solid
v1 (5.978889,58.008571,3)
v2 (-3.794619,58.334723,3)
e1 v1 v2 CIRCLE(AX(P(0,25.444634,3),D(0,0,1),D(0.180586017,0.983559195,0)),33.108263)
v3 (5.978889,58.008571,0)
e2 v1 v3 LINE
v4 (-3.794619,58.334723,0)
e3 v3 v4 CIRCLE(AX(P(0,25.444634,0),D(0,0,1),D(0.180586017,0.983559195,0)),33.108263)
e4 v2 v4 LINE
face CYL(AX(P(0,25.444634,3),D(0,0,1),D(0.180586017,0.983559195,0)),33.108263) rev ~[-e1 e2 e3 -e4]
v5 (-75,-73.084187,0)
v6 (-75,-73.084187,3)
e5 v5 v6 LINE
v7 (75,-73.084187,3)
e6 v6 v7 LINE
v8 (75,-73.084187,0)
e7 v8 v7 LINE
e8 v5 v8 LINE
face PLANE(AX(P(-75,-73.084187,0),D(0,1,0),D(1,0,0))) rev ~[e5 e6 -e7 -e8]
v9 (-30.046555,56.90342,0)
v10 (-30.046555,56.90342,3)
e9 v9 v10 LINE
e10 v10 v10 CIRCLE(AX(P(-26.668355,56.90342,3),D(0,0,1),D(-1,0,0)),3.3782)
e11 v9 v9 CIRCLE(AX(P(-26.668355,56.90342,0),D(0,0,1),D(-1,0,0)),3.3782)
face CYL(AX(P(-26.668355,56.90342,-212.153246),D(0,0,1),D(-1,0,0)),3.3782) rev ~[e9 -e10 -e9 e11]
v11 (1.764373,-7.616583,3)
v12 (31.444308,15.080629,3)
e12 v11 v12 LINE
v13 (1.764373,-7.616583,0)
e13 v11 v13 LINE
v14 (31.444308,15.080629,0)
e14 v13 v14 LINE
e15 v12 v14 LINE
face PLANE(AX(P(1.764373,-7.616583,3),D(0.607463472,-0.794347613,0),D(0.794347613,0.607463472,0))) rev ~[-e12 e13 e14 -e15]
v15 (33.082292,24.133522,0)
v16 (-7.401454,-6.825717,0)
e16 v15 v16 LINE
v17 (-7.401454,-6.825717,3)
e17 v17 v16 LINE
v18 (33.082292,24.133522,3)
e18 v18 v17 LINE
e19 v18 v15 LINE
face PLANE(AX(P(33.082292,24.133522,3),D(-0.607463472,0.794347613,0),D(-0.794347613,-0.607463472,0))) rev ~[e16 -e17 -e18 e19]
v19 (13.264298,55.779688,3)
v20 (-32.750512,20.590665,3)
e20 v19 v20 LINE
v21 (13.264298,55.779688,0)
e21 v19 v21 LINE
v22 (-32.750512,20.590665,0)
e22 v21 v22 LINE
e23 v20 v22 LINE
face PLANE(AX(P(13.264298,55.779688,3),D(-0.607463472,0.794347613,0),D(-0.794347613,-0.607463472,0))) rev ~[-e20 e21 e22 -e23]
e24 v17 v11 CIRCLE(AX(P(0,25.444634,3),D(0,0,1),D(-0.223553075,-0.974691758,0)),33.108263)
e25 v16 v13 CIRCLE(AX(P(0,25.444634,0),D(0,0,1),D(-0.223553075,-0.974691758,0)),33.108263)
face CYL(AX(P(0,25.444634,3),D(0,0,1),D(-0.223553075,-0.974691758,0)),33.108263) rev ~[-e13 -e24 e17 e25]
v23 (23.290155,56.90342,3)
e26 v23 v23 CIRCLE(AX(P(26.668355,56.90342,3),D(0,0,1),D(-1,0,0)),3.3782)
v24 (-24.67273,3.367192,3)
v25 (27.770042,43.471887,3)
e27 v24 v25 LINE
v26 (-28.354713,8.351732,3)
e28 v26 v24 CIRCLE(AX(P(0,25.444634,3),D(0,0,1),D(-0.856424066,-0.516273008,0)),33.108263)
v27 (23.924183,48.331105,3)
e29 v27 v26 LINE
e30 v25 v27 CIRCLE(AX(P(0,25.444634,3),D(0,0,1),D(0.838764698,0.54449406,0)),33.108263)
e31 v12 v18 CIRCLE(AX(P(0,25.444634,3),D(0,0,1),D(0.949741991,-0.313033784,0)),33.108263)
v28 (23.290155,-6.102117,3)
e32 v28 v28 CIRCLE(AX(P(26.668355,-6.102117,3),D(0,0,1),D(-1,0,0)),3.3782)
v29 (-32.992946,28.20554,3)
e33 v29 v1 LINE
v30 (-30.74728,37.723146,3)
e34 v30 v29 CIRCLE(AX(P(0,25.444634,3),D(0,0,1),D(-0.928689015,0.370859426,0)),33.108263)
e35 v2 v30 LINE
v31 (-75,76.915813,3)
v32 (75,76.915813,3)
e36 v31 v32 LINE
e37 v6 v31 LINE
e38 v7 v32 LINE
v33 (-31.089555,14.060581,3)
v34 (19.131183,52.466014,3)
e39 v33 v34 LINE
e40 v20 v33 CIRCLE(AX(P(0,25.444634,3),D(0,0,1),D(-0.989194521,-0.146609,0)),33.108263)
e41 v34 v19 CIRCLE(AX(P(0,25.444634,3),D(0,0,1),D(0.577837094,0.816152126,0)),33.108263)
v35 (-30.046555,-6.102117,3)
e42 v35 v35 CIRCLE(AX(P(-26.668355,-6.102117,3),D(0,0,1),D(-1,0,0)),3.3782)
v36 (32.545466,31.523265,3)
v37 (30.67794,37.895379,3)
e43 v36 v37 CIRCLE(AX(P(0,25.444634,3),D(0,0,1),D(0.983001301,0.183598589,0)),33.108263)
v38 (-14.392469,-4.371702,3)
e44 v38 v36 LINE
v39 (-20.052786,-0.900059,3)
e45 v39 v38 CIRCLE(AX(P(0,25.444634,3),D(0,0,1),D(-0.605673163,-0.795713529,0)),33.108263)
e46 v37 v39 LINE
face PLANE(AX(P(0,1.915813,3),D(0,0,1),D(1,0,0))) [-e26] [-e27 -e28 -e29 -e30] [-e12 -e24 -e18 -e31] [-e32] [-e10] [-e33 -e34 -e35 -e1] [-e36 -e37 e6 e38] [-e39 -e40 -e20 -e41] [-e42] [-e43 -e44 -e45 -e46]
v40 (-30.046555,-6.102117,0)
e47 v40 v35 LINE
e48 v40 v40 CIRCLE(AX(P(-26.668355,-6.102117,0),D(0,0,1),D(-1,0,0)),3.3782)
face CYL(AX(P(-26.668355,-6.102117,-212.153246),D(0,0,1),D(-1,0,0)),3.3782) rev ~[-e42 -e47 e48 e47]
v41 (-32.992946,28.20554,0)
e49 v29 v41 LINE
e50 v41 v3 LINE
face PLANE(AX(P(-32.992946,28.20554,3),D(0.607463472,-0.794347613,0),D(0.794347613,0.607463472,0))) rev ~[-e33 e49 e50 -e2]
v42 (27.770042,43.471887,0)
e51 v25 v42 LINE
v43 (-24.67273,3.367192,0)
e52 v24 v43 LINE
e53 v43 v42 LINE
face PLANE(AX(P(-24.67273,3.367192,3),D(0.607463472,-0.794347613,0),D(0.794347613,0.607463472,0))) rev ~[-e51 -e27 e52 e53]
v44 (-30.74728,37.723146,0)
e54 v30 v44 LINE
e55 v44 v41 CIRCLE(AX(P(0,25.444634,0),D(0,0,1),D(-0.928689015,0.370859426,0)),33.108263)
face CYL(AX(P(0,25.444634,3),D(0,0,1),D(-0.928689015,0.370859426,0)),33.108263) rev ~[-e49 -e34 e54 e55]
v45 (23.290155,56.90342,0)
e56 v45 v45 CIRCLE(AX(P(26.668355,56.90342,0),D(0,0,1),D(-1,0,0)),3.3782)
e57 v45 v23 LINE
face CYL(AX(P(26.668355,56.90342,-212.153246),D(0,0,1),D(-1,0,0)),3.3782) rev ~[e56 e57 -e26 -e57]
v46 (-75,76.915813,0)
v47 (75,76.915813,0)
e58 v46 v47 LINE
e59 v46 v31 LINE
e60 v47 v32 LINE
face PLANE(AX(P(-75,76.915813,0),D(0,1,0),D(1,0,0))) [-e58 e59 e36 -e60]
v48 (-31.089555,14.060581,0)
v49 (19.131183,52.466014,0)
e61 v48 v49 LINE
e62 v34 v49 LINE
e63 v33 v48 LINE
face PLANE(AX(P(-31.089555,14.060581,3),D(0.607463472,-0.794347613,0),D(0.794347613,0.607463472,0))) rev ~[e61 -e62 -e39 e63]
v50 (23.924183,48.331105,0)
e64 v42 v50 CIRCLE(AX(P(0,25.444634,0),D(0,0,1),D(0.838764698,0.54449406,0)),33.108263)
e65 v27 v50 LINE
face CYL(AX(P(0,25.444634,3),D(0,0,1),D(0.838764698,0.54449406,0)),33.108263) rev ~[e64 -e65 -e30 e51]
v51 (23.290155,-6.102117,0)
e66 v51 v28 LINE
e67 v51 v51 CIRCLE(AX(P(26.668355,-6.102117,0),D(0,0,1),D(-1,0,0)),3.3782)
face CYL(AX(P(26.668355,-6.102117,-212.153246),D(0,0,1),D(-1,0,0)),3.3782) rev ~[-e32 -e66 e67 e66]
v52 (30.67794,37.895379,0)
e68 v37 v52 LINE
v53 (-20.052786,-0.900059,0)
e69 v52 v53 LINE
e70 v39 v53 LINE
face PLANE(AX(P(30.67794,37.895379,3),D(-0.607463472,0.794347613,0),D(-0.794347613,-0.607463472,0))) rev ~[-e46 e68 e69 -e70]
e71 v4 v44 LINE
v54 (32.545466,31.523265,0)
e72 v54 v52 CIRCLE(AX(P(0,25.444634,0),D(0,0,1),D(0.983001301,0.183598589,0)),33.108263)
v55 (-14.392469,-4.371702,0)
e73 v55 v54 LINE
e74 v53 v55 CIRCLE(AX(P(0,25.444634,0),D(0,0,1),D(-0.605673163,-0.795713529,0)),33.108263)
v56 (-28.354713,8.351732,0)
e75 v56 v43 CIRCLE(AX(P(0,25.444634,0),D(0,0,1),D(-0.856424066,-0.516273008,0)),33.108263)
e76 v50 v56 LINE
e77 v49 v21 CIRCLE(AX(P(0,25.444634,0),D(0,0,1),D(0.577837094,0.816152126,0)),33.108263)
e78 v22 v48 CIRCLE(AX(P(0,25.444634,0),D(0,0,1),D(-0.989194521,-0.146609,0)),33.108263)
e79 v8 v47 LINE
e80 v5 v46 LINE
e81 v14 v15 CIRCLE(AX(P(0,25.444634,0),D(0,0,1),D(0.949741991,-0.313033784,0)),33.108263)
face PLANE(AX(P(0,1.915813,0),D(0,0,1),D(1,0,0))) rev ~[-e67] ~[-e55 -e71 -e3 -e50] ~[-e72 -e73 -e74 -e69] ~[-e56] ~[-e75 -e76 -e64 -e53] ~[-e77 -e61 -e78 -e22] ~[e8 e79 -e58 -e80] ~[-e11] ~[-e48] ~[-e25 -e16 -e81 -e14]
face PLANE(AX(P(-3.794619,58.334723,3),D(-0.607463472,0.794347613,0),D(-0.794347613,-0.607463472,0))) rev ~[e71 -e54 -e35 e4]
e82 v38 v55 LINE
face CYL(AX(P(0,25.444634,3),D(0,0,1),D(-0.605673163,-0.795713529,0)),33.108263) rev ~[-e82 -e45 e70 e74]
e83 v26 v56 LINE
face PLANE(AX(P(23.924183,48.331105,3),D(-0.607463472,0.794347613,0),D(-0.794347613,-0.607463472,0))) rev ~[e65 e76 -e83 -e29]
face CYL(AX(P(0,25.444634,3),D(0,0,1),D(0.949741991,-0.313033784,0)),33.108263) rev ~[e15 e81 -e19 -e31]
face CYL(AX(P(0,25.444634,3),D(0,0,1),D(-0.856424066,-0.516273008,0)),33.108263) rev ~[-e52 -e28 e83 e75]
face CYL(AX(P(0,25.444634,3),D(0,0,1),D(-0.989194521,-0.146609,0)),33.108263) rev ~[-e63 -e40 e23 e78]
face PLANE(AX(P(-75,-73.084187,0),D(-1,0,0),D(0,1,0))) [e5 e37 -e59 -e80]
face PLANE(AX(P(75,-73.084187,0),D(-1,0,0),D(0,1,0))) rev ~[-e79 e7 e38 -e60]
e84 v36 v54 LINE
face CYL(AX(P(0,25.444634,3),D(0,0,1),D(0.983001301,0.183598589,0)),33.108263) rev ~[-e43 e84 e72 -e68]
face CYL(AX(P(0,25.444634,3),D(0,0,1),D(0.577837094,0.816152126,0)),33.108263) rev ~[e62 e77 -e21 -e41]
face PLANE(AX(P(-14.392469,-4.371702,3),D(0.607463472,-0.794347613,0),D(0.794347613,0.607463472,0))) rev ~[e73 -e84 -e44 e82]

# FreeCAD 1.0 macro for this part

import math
import FreeCAD as App
import Part
import Sketcher

V = App.Vector
Q = App.Units.Quantity


def add_polygon(sketch, points):
    """Adds a closed chain of lines whose ends are joined by coincident constraints."""
    first, n = sketch.GeometryCount, len(points)
    for a, b in zip(points, points[1:] + points[:1]):
        sketch.addGeometry(Part.LineSegment(App.Vector(*a, 0), App.Vector(*b, 0)), False)
    for i in range(n):
        sketch.addConstraint(Sketcher.Constraint("Coincident", first + i, 2, first + (i + 1) % n, 1))

doc = App.newDocument("Part")
params = doc.addObject("Spreadsheet::Sheet", "Params")
for row, (alias, value) in enumerate([
    ("sketch1_width", "150 mm"),
    ("pad1_length", "3 mm"),
    ("hole_diameter", "6.7564 mm"),
    ("pocket1_length", "25 mm"),
], start=1):
    params.set(f"A{row}", alias)
    params.set(f"B{row}", "=" + value)
    params.setAlias(f"B{row}", alias)

body = doc.addObject("PartDesign::Body", "Body")

# Sketch on XY plane
sketch1 = body.newObject("Sketcher::SketchObject", "Sketch")
sketch1.AttachmentSupport = (doc.getObject("XY_Plane"), [""])
sketch1.MapMode = "FlatFace"
add_polygon(sketch1, [(-75, 77), (-75, -73), (75, -73), (75, 77)])  # lines 0-3
sketch1.addConstraint(Sketcher.Constraint("Vertical", 0))
sketch1.addConstraint(Sketcher.Constraint("Horizontal", 1))
sketch1.addConstraint(Sketcher.Constraint("Vertical", 2))
sketch1.addConstraint(Sketcher.Constraint("Horizontal", 3))
sketch1.addConstraint(Sketcher.Constraint("Equal", 3, 0))
sketch1.addConstraint(Sketcher.Constraint("DistanceX", 1, 1, 1, 2, Q("150 mm")))
sketch1.addConstraint(Sketcher.Constraint("DistanceX", 0, 2, -1, 1, Q("75 mm")))
sketch1.addConstraint(Sketcher.Constraint("DistanceY", 0, 2, -1, 1, Q("73.084187 mm")))
sketch1.setExpression("Constraints[9]", "Params.sketch1_width")
pad1 = body.newObject("PartDesign::Pad", "Pad")
pad1.Profile = sketch1
pad1.setExpression("Length", "Params.pad1_length")

# Sketch on XY plane
sketch2 = body.newObject("Sketcher::SketchObject", "Sketch001")
sketch2.AttachmentSupport = (doc.getObject("XY_Plane"), [""])
sketch2.MapMode = "FlatFace"
sketch2.addGeometry(Part.Circle(V(-26.7, 56.9, 0), V(0, 0, 1), 3.4), False)
sketch2.addGeometry(Part.Circle(V(26.7, 56.9, 0), V(0, 0, 1), 3.4), False)
sketch2.addGeometry(Part.Circle(V(-26.7, -6.1, 0), V(0, 0, 1), 3.4), False)
sketch2.addGeometry(Part.Circle(V(26.7, -6.1, 0), V(0, 0, 1), 3.4), False)
sketch2.addConstraint(Sketcher.Constraint("Equal", 0, 1))
sketch2.addConstraint(Sketcher.Constraint("Equal", 1, 2))
sketch2.addConstraint(Sketcher.Constraint("Equal", 2, 3))
sketch2.addConstraint(Sketcher.Constraint("Symmetric", 0, 3, 1, 3, -2))
sketch2.addConstraint(Sketcher.Constraint("Symmetric", 2, 3, 3, 3, -2))
sketch2.addConstraint(Sketcher.Constraint("Vertical", 0, 3, 2, 3))
sketch2.addConstraint(Sketcher.Constraint("Diameter", 0, Q("6.7564 mm")))
sketch2.addConstraint(Sketcher.Constraint("DistanceY", -1, 1, 0, 3, Q("56.90342 mm")))
sketch2.addConstraint(Sketcher.Constraint("DistanceX", 0, 3, 1, 3, Q("53.336711 mm")))
sketch2.addConstraint(Sketcher.Constraint("DistanceY", 2, 3, -1, 1, Q("6.102117 mm")))
doc.recompute()
hole = body.newObject("PartDesign::Hole", "Hole")
hole.Profile = sketch2
hole.ThreadType = "None"
hole.setExpression("Diameter", "Params.hole_diameter")
hole.DepthType = "ThroughAll"
hole.Reversed = True

# Sketch on XY plane
sketch3 = body.newObject("Sketcher::SketchObject", "Sketch002")
sketch3.AttachmentSupport = (doc.getObject("XY_Plane"), [""])
sketch3.MapMode = "FlatFace"
sketch3.AttachmentOffset = App.Placement(V(0, 0, 3), App.Rotation())
sketch3.addGeometry(Part.LineSegment(V(-4, 58, 0), V(-31, 38, 0)), False)
sketch3.addGeometry(Part.ArcOfCircle(Part.Circle(V(0, 25, 0), V(0, 0, 1), 33), math.radians(158.23), math.radians(175.22)), False)
sketch3.addGeometry(Part.LineSegment(V(-33, 28, 0), V(6, 58, 0)), False)
sketch3.addGeometry(Part.ArcOfCircle(Part.Circle(V(0, 25, 0), V(0, 0, 1), 33), math.radians(79.6), math.radians(96.58)), False)
sketch3.addGeometry(Part.LineSegment(V(13, 56, 0), V(-33, 21, 0)), False)
sketch3.addGeometry(Part.ArcOfCircle(Part.Circle(V(0, 25, 0), V(0, 0, 1), 33), math.radians(-171.57), math.radians(-159.89)), False)
sketch3.addGeometry(Part.LineSegment(V(-31, 14, 0), V(19, 52, 0)), False)
sketch3.addGeometry(Part.ArcOfCircle(Part.Circle(V(0, 25, 0), V(0, 0, 1), 33), math.radians(54.7), math.radians(66.38)), False)
sketch3.addGeometry(Part.LineSegment(V(24, 48, 0), V(-28, 8, 0)), False)
sketch3.addGeometry(Part.ArcOfCircle(Part.Circle(V(0, 25, 0), V(0, 0, 1), 33), math.radians(-148.92), math.radians(-138.18)), False)
sketch3.addGeometry(Part.LineSegment(V(-25, 3, 0), V(28, 43, 0)), False)
sketch3.addGeometry(Part.ArcOfCircle(Part.Circle(V(0, 25, 0), V(0, 0, 1), 33), math.radians(32.99), math.radians(43.73)), False)
sketch3.addGeometry(Part.LineSegment(V(31, 38, 0), V(-20, -1, 0)), False)
sketch3.addGeometry(Part.ArcOfCircle(Part.Circle(V(0, 25, 0), V(0, 0, 1), 33), math.radians(-127.28), math.radians(-115.77)), False)
sketch3.addGeometry(Part.LineSegment(V(-14, -4, 0), V(33, 32, 0)), False)
sketch3.addGeometry(Part.ArcOfCircle(Part.Circle(V(0, 25, 0), V(0, 0, 1), 33), math.radians(10.58), math.radians(22.09)), False)
sketch3.addGeometry(Part.LineSegment(V(33, 24, 0), V(-7, -7, 0)), False)
sketch3.addGeometry(Part.ArcOfCircle(Part.Circle(V(0, 25, 0), V(0, 0, 1), 33), math.radians(-102.92), math.radians(-86.95)), False)
sketch3.addGeometry(Part.LineSegment(V(2, -8, 0), V(31, 15, 0)), False)
sketch3.addGeometry(Part.ArcOfCircle(Part.Circle(V(0, 25, 0), V(0, 0, 1), 33), math.radians(-18.24), math.radians(-2.27)), False)
sketch3.addConstraint(Sketcher.Constraint("Coincident", 0, 2, 1, 1))
sketch3.addConstraint(Sketcher.Constraint("Coincident", 1, 2, 2, 1))
sketch3.addConstraint(Sketcher.Constraint("Coincident", 2, 2, 3, 1))
sketch3.addConstraint(Sketcher.Constraint("Coincident", 3, 2, 0, 1))
sketch3.addConstraint(Sketcher.Constraint("Coincident", 4, 2, 5, 1))
sketch3.addConstraint(Sketcher.Constraint("Coincident", 5, 2, 6, 1))
sketch3.addConstraint(Sketcher.Constraint("Coincident", 6, 2, 7, 1))
sketch3.addConstraint(Sketcher.Constraint("Coincident", 7, 2, 4, 1))
sketch3.addConstraint(Sketcher.Constraint("Coincident", 8, 2, 9, 1))
sketch3.addConstraint(Sketcher.Constraint("Coincident", 9, 2, 10, 1))
sketch3.addConstraint(Sketcher.Constraint("Coincident", 10, 2, 11, 1))
sketch3.addConstraint(Sketcher.Constraint("Coincident", 11, 2, 8, 1))
sketch3.addConstraint(Sketcher.Constraint("Coincident", 12, 2, 13, 1))
sketch3.addConstraint(Sketcher.Constraint("Coincident", 13, 2, 14, 1))
sketch3.addConstraint(Sketcher.Constraint("Coincident", 14, 2, 15, 1))
sketch3.addConstraint(Sketcher.Constraint("Coincident", 15, 2, 12, 1))
sketch3.addConstraint(Sketcher.Constraint("Coincident", 16, 2, 17, 1))
sketch3.addConstraint(Sketcher.Constraint("Coincident", 17, 2, 18, 1))
sketch3.addConstraint(Sketcher.Constraint("Coincident", 18, 2, 19, 1))
sketch3.addConstraint(Sketcher.Constraint("Coincident", 19, 2, 16, 1))
sketch3.addConstraint(Sketcher.Constraint("Coincident", 3, 3, 1, 3))
sketch3.addConstraint(Sketcher.Constraint("Coincident", 5, 3, 1, 3))
sketch3.addConstraint(Sketcher.Constraint("Coincident", 7, 3, 1, 3))
sketch3.addConstraint(Sketcher.Constraint("Coincident", 9, 3, 1, 3))
sketch3.addConstraint(Sketcher.Constraint("Coincident", 11, 3, 1, 3))
sketch3.addConstraint(Sketcher.Constraint("Coincident", 13, 3, 1, 3))
sketch3.addConstraint(Sketcher.Constraint("Coincident", 15, 3, 1, 3))
sketch3.addConstraint(Sketcher.Constraint("Coincident", 17, 3, 1, 3))
sketch3.addConstraint(Sketcher.Constraint("Coincident", 19, 3, 1, 3))
sketch3.addConstraint(Sketcher.Constraint("Equal", 1, 3))
sketch3.addConstraint(Sketcher.Constraint("Equal", 3, 5))
sketch3.addConstraint(Sketcher.Constraint("Equal", 5, 7))
sketch3.addConstraint(Sketcher.Constraint("Equal", 7, 9))
sketch3.addConstraint(Sketcher.Constraint("Equal", 9, 11))
sketch3.addConstraint(Sketcher.Constraint("Equal", 11, 13))
sketch3.addConstraint(Sketcher.Constraint("Equal", 13, 15))
sketch3.addConstraint(Sketcher.Constraint("Equal", 15, 17))
sketch3.addConstraint(Sketcher.Constraint("Equal", 17, 19))
sketch3.addConstraint(Sketcher.Constraint("PointOnObject", 1, 3, -2))
sketch3.addConstraint(Sketcher.Constraint("Parallel", 0, 2))
sketch3.addConstraint(Sketcher.Constraint("Parallel", 2, 4))
sketch3.addConstraint(Sketcher.Constraint("Parallel", 4, 6))
sketch3.addConstraint(Sketcher.Constraint("Parallel", 6, 8))
sketch3.addConstraint(Sketcher.Constraint("Parallel", 8, 10))
sketch3.addConstraint(Sketcher.Constraint("Parallel", 10, 12))
sketch3.addConstraint(Sketcher.Constraint("Parallel", 12, 14))
sketch3.addConstraint(Sketcher.Constraint("Parallel", 14, 16))
sketch3.addConstraint(Sketcher.Constraint("Parallel", 16, 18))
sketch3.addConstraint(Sketcher.Constraint("Radius", 1, Q("33.108263 mm")))
sketch3.addConstraint(Sketcher.Constraint("DistanceX", 6, 2, 11, 2, Q("4.793001 mm")))
sketch3.addConstraint(Sketcher.Constraint("Distance", 4, Q("57.927801 mm")))
sketch3.addConstraint(Sketcher.Constraint("DistanceY", 13, 2, -1, 1, Q("4.371702 mm")))
sketch3.addConstraint(Sketcher.Constraint("DistanceX", 3, 2, 6, 2, Q("22.925801 mm")))
sketch3.addConstraint(Sketcher.Constraint("DistanceX", 4, 2, 8, 2, Q("4.395799 mm")))
sketch3.addConstraint(Sketcher.Constraint("DistanceY", 10, 2, 7, 2, Q("12.307801 mm")))
sketch3.addConstraint(Sketcher.Constraint("DistanceY", 12, 2, 1, 2, Q("29.105599 mm")))
sketch3.addConstraint(Sketcher.Constraint("DistanceX", 10, 2, 15, 2, Q("2.907898 mm")))
sketch3.addConstraint(Sketcher.Constraint("DistanceX", 5, 2, 16, 2, Q("23.688101 mm")))
sketch3.addConstraint(Sketcher.Constraint("DistanceY", 16, 2, 5, 2, Q("20.886298 mm")))
sketch3.addConstraint(Sketcher.Constraint("DistanceY", -1, 1, 1, 2, Q("28.20554 mm")))
sketch3.addConstraint(Sketcher.Constraint("DistanceY", -1, 1, 18, 2, Q("15.080629 mm")))
pocket1 = body.newObject("PartDesign::Pocket", "Pocket")
pocket1.Profile = sketch3
pocket1.setExpression("Length", "Params.pocket1_length")

doc.recompute()
